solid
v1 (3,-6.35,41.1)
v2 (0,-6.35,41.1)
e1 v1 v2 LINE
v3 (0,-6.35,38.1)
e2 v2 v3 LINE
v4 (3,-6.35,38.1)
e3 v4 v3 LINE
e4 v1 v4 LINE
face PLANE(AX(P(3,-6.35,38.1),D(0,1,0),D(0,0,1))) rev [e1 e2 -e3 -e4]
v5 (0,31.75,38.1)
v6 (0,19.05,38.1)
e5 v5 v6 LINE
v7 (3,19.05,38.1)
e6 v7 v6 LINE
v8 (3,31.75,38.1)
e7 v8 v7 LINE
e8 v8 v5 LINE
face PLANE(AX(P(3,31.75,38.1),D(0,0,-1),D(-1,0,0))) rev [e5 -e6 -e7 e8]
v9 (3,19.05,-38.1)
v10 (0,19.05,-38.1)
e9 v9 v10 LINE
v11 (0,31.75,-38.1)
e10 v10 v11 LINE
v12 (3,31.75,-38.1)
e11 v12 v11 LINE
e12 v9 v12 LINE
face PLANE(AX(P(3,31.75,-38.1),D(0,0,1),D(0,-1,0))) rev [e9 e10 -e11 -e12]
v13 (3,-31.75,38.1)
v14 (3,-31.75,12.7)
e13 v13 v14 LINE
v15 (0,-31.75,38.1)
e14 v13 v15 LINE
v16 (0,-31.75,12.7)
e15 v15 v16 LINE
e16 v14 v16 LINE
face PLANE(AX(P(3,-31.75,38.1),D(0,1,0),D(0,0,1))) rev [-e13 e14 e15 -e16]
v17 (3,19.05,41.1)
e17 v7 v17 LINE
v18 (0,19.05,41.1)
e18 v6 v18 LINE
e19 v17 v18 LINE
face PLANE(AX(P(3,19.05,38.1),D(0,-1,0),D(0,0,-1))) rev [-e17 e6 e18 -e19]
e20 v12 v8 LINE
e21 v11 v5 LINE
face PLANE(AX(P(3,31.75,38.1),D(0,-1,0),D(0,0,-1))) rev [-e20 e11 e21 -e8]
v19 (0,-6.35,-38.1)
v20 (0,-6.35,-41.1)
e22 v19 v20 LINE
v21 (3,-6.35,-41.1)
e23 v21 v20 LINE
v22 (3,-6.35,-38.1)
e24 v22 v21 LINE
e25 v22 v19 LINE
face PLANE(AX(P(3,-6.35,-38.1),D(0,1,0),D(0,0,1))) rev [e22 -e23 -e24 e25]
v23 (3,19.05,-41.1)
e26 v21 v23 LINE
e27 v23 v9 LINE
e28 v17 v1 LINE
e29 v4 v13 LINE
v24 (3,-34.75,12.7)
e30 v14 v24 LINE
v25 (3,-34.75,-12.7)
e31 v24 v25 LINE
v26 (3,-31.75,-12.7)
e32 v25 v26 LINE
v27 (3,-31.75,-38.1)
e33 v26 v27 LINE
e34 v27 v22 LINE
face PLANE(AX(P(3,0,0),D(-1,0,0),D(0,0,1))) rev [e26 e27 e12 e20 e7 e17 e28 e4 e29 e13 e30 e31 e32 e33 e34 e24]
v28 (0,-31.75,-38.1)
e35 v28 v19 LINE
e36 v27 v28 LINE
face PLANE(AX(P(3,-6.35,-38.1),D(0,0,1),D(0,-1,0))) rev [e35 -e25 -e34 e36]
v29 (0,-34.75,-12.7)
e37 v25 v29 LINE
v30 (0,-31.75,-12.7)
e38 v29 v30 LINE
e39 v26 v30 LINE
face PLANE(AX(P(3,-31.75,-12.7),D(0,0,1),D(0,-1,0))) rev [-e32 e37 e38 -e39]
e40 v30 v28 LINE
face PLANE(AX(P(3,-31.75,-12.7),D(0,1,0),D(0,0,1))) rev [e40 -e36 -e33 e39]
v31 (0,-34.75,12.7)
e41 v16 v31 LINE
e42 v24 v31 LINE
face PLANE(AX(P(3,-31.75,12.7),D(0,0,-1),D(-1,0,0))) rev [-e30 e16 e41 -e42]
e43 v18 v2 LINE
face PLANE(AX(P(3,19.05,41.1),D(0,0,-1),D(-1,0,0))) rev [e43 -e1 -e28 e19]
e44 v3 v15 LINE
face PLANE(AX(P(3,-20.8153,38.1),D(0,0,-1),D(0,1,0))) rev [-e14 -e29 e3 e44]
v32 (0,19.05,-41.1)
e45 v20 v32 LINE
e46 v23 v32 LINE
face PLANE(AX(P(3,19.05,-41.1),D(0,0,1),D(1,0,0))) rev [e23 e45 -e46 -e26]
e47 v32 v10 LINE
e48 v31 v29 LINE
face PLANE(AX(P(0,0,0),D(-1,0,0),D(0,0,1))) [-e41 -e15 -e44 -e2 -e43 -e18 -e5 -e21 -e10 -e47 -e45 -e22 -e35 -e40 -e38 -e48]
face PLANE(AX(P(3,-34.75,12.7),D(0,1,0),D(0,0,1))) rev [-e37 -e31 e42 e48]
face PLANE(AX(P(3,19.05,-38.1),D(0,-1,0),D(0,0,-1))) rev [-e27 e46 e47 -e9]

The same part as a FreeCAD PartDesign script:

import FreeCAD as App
import Part
import Sketcher

V = App.Vector
Q = App.Units.Quantity


def add_polygon(sketch, points):
    """Adds a closed chain of lines whose ends are joined by coincident constraints."""
    first, n = sketch.GeometryCount, len(points)
    for a, b in zip(points, points[1:] + points[:1]):
        sketch.addGeometry(Part.LineSegment(App.Vector(*a, 0), App.Vector(*b, 0)), False)
    for i in range(n):
        sketch.addConstraint(Sketcher.Constraint("Coincident", first + i, 2, first + (i + 1) % n, 1))

doc = App.newDocument("Part")
body = doc.addObject("PartDesign::Body", "Body")

sketch1 = body.newObject("Sketcher::SketchObject", "Sketch")
sketch1.AttachmentSupport = (doc.getObject("YZ_Plane"), [""])
sketch1.MapMode = "FlatFace"
add_polygon(sketch1, [(-31.75, 38.1), (-31.75, 12.7), (-34.75, 12.7), (-34.75, -12.7), (-31.75, -12.7), (-31.75, -38.1), (-6.35, -38.1), (-6.35, -41.1), (19.05, -41.1), (19.05, -38.1), (31.75, -38.1), (31.75, 38.1), (19.05, 38.1), (19.05, 41.1), (-6.35, 41.1), (-6.35, 38.1)])
sketch1.addConstraint([
    Sketcher.Constraint("Vertical", 0),
    Sketcher.Constraint("Horizontal", 1),
    Sketcher.Constraint("Vertical", 2),
    Sketcher.Constraint("Horizontal", 3),
    Sketcher.Constraint("Vertical", 4),
    Sketcher.Constraint("Horizontal", 5),
    Sketcher.Constraint("Vertical", 6),
    Sketcher.Constraint("Horizontal", 7),
    Sketcher.Constraint("Vertical", 8),
    Sketcher.Constraint("Horizontal", 9),
    Sketcher.Constraint("Vertical", 10),
    Sketcher.Constraint("Horizontal", 11),
    Sketcher.Constraint("Vertical", 12),
    Sketcher.Constraint("Horizontal", 13),
    Sketcher.Constraint("Vertical", 14),
    Sketcher.Constraint("Horizontal", 15),
    Sketcher.Constraint("Symmetric", 4, 2, 10, 2, -1, 1),
    Sketcher.Constraint("Symmetric", 9, 2, 15, 2, -1, 1),
    Sketcher.Constraint("Symmetric", 8, 2, 11, 2, -1),
    Sketcher.Constraint("Symmetric", 6, 2, 13, 2, -1),
    Sketcher.Constraint("Equal", 5, 7),
    Sketcher.Constraint("Equal", 15, 0),
    Sketcher.Constraint("Equal", 0, 2),
    Sketcher.Constraint("Equal", 2, 4),
    Sketcher.Constraint("Equal", 3, 6),
    Sketcher.Constraint("DistanceX", 5, 1, 5, 2, Q("1 in")),
    Sketcher.Constraint("DistanceX", 9, 1, 9, 2, Q("0.5 in")),
    Sketcher.Constraint("DistanceX", 1, 2, 1, 1, Q("3 mm")),
])
pad1 = body.newObject("PartDesign::Pad", "Pad")
pad1.Profile = sketch1
pad1.Length = 3

doc.recompute()
